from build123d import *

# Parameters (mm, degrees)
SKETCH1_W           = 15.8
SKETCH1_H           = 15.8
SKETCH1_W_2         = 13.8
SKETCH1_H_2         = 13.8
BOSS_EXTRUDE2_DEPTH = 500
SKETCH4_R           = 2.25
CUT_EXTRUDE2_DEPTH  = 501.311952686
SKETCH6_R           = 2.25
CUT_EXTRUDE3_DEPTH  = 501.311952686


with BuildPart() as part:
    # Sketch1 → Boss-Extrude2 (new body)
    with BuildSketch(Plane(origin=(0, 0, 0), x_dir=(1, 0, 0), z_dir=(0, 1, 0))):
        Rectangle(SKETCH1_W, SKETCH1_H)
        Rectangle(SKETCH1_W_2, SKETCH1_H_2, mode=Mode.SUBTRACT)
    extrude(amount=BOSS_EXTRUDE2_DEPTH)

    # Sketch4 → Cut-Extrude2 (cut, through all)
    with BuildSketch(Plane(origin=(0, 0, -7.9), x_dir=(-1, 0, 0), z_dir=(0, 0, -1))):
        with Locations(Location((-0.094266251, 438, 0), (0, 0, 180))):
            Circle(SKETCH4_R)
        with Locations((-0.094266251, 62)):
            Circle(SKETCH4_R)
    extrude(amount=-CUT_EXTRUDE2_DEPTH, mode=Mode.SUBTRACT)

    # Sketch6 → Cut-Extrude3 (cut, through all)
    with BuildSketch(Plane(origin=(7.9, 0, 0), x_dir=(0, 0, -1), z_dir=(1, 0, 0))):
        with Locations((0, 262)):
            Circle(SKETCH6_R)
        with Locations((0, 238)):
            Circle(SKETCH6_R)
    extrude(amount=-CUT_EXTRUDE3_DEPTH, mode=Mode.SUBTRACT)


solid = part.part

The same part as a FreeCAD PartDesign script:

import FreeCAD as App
import Part
import Sketcher

V = App.Vector
Q = App.Units.Quantity


def add_polygon(sketch, points):
    """Adds a closed chain of lines whose ends are joined by coincident constraints."""
    first, n = sketch.GeometryCount, len(points)
    for a, b in zip(points, points[1:] + points[:1]):
        sketch.addGeometry(Part.LineSegment(App.Vector(*a, 0), App.Vector(*b, 0)), False)
    for i in range(n):
        sketch.addConstraint(Sketcher.Constraint("Coincident", first + i, 2, first + (i + 1) % n, 1))

doc = App.newDocument("Part")
params = doc.addObject("Spreadsheet::Sheet", "Params")
for row, (alias, value) in enumerate([
    ("sketch1_width", "15.8 mm"),
    ("sketch1_width2", "13.8 mm"),
    ("pad1_length", "500 mm"),
    ("sketch2_diameter", "4.5 mm"),
    ("sketch3_diameter", "4.5 mm"),
], start=1):
    params.set(f"A{row}", alias)
    params.set(f"B{row}", "=" + value)
    params.setAlias(f"B{row}", alias)

body = doc.addObject("PartDesign::Body", "Body")

sketch1 = doc.addObject("Sketcher::SketchObject", "Sketch")
body.addObject(sketch1)
sketch1.AttachmentSupport = (doc.XZ_Plane, [""])
sketch1.MapMode = "FlatFace"
add_polygon(sketch1, [(-8, -8), (-8, 8), (8, 8), (8, -8)])
add_polygon(sketch1, [(7, 7), (-7, 7), (-7, -7), (7, -7)])
sketch1.addConstraint(Sketcher.Constraint("Vertical", 0))
sketch1.addConstraint(Sketcher.Constraint("Horizontal", 1))
sketch1.addConstraint(Sketcher.Constraint("Vertical", 2))
sketch1.addConstraint(Sketcher.Constraint("Horizontal", 3))
sketch1.addConstraint(Sketcher.Constraint("Horizontal", 4))
sketch1.addConstraint(Sketcher.Constraint("Vertical", 5))
sketch1.addConstraint(Sketcher.Constraint("Horizontal", 6))
sketch1.addConstraint(Sketcher.Constraint("Vertical", 7))
sketch1.addConstraint(Sketcher.Constraint("Symmetric", 0, 2, 2, 2, -1, 1))
sketch1.addConstraint(Sketcher.Constraint("Symmetric", 4, 2, 6, 2, -1, 1))
sketch1.addConstraint(Sketcher.Constraint("Equal", 3, 0))
sketch1.addConstraint(Sketcher.Constraint("Equal", 6, 5))
sketch1.addConstraint(Sketcher.Constraint("DistanceX", 1, 1, 1, 2, Q("15.8 mm")))
sketch1.addConstraint(Sketcher.Constraint("DistanceX", 4, 2, 4, 1, Q("13.8 mm")))
sketch1.setExpression("Constraints[20]", "Params.sketch1_width")
sketch1.setExpression("Constraints[21]", "Params.sketch1_width2")
pad1 = doc.addObject("PartDesign::Pad", "Pad")
body.addObject(pad1)
pad1.Profile = sketch1
pad1.setExpression("Length", "Params.pad1_length")
pad1.Reversed = True

sketch2 = doc.addObject("Sketcher::SketchObject", "Sketch001")
body.addObject(sketch2)
sketch2.AttachmentSupport = (doc.XY_Plane, [""])
sketch2.MapMode = "FlatFace"
sketch2.AttachmentOffset = App.Placement(V(0, 0, -7.9), App.Rotation())
sketch2.addGeometry(Part.Circle(V(0.1, 438, 0), V(0, 0, 1), 2.2), False)
sketch2.addGeometry(Part.Circle(V(0.1, 62, 0), V(0, 0, 1), 2.2), False)
sketch2.addConstraint(Sketcher.Constraint("Equal", 0, 1))
sketch2.addConstraint(Sketcher.Constraint("Vertical", 0, 3, 1, 3))
sketch2.addConstraint(Sketcher.Constraint("Diameter", 0, Q("4.5 mm")))
sketch2.addConstraint(Sketcher.Constraint("DistanceY", -1, 1, 0, 3, Q("438 mm")))
sketch2.addConstraint(Sketcher.Constraint("DistanceY", -1, 1, 1, 3, Q("62 mm")))
sketch2.addConstraint(Sketcher.Constraint("DistanceX", -1, 1, 0, 3, Q("0.094266 mm")))
sketch2.setExpression("Constraints[2]", "Params.sketch2_diameter")
pocket1 = doc.addObject("PartDesign::Pocket", "Pocket")
body.addObject(pocket1)
pocket1.Profile = sketch2
pocket1.Type = "ThroughAll"
pocket1.Reversed = True

sketch3 = doc.addObject("Sketcher::SketchObject", "Sketch002")
body.addObject(sketch3)
sketch3.AttachmentSupport = (doc.YZ_Plane, [""])
sketch3.MapMode = "FlatFace"
sketch3.AttachmentOffset = App.Placement(V(0, 0, 7.9), App.Rotation())
sketch3.addGeometry(Part.Circle(V(262, 0, 0), V(0, 0, 1), 2.2), False)
sketch3.addGeometry(Part.Circle(V(238, 0, 0), V(0, 0, 1), 2.2), False)
sketch3.addConstraint(Sketcher.Constraint("Equal", 0, 1))
sketch3.addConstraint(Sketcher.Constraint("PointOnObject", 0, 3, -1))
sketch3.addConstraint(Sketcher.Constraint("PointOnObject", 1, 3, -1))
sketch3.addConstraint(Sketcher.Constraint("Diameter", 0, Q("4.5 mm")))
sketch3.addConstraint(Sketcher.Constraint("DistanceX", -1, 1, 0, 3, Q("262 mm")))
sketch3.addConstraint(Sketcher.Constraint("DistanceX", -1, 1, 1, 3, Q("238 mm")))
sketch3.setExpression("Constraints[3]", "Params.sketch3_diameter")
pocket2 = doc.addObject("PartDesign::Pocket", "Pocket001")
body.addObject(pocket2)
pocket2.Profile = sketch3
pocket2.Type = "ThroughAll"

doc.recompute()
